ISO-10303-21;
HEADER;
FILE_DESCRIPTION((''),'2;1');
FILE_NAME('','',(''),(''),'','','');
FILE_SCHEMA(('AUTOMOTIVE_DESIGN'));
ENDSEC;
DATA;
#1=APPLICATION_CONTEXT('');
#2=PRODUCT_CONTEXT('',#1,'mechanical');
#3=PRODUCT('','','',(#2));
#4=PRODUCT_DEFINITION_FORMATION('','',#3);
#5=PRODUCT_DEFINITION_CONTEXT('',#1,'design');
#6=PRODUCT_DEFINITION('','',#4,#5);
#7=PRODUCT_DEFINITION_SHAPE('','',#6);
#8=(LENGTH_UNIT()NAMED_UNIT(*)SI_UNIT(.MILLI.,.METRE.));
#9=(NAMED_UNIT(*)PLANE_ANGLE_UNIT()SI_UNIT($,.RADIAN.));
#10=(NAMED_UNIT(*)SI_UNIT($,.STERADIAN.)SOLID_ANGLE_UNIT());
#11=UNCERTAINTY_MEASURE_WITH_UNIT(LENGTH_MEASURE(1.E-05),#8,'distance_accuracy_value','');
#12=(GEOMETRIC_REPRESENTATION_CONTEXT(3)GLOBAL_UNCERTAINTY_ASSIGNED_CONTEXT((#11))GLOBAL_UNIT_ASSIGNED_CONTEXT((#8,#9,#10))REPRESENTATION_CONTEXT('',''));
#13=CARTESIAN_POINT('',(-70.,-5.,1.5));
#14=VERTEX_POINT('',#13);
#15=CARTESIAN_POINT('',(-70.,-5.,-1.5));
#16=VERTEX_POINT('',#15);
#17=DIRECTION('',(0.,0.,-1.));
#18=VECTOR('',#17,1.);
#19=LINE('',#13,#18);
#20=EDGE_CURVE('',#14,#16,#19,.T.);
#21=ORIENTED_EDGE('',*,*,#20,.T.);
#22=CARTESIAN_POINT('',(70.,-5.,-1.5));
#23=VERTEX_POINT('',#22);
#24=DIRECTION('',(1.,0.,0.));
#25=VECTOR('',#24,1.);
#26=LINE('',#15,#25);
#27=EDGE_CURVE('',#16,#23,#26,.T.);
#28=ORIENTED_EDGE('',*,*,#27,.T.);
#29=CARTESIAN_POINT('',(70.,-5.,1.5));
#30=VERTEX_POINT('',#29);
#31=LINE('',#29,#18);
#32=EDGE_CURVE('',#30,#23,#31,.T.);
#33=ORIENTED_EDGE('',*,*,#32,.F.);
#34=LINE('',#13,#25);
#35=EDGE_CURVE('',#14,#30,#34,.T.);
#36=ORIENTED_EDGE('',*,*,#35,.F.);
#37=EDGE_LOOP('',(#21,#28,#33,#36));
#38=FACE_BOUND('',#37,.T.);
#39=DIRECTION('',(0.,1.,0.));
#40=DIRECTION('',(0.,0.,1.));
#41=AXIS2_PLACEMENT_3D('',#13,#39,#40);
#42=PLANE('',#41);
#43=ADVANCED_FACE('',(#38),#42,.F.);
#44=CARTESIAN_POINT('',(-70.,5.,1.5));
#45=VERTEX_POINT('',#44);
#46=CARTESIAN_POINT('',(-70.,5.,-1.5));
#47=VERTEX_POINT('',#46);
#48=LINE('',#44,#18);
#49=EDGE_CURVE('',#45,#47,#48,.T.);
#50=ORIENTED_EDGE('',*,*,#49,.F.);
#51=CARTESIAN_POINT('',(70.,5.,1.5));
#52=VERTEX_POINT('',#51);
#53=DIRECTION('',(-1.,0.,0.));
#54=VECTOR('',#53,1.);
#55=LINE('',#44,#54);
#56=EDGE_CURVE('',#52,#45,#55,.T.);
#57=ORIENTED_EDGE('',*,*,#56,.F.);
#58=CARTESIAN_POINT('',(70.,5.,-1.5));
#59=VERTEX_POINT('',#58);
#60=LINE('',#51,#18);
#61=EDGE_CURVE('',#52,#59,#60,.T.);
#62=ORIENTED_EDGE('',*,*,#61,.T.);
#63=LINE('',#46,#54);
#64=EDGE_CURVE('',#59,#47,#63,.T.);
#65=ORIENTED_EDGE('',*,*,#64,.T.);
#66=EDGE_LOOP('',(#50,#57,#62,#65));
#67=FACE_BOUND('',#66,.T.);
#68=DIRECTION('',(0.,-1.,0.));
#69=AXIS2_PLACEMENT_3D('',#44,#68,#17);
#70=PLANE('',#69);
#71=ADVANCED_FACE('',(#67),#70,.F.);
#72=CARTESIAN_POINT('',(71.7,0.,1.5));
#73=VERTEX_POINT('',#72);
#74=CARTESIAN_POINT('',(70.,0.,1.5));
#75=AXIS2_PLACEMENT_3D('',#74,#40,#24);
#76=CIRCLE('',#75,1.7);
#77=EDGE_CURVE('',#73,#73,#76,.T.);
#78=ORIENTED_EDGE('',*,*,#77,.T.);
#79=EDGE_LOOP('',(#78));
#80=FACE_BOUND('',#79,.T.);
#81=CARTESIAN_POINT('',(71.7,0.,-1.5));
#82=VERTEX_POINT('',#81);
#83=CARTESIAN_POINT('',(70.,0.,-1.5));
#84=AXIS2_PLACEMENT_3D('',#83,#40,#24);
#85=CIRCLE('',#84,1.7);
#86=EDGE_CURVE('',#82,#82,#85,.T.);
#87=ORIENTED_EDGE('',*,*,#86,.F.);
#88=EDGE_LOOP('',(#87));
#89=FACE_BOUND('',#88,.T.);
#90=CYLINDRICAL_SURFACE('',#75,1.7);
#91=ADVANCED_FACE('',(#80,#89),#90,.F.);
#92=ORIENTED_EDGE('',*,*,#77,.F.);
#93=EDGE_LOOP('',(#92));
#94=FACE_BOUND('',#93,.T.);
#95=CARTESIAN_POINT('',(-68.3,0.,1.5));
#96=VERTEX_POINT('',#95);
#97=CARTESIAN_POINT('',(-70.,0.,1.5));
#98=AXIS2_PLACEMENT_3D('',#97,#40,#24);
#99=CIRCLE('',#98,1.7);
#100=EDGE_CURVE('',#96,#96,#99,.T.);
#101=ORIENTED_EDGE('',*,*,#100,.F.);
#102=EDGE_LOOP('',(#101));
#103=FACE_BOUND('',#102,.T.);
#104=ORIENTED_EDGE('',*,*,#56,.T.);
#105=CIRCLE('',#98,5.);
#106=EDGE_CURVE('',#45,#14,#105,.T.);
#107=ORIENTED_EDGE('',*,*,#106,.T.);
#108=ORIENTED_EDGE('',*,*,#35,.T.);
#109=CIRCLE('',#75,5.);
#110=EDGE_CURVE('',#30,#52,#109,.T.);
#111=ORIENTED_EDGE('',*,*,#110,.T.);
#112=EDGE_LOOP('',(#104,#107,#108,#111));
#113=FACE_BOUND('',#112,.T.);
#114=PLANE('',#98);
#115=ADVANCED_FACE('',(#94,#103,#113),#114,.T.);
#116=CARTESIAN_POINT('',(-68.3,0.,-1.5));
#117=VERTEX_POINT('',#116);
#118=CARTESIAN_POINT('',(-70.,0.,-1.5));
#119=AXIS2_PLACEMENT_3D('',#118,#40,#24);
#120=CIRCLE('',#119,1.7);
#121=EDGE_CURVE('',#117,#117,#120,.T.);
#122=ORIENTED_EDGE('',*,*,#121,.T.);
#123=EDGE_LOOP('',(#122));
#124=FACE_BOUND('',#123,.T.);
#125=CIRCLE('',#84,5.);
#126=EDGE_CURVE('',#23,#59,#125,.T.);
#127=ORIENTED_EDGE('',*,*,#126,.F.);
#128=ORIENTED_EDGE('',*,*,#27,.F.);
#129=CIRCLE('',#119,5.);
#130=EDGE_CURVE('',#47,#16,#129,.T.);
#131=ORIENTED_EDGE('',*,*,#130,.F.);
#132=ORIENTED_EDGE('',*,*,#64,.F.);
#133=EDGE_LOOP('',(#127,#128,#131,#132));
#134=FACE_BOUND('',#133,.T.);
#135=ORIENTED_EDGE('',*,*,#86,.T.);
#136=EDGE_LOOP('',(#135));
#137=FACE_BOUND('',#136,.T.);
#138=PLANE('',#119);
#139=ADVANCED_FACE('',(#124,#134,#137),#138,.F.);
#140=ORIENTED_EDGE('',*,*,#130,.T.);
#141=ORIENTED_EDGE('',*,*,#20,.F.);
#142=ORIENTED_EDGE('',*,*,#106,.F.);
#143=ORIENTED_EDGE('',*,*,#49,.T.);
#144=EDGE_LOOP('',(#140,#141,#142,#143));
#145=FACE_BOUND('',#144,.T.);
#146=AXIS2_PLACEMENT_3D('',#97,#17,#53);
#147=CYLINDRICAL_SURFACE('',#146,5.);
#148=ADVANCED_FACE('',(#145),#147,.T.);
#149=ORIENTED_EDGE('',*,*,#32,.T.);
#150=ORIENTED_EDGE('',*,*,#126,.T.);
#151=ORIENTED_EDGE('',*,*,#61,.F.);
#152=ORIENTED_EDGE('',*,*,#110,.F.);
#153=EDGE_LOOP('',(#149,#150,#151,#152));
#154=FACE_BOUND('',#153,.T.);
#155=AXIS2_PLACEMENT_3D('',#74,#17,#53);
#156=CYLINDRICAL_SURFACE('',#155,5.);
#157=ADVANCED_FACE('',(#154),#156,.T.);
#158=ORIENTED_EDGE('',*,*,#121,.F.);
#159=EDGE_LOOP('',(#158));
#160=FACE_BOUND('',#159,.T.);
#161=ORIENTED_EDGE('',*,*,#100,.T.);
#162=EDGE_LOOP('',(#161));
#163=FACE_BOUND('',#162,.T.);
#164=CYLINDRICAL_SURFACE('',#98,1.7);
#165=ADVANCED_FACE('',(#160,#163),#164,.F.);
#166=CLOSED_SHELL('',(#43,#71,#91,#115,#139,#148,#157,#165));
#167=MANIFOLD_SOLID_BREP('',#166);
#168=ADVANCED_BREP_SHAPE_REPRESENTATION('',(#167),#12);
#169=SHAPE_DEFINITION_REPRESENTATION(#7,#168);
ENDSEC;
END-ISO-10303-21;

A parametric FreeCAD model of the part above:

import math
import FreeCAD as App
import Part
import Sketcher

V = App.Vector

doc = App.newDocument("Part")
body = doc.addObject("PartDesign::Body", "Body")

sketch1 = doc.addObject("Sketcher::SketchObject", "Sketch")
body.addObject(sketch1)
sketch1.AttachmentSupport = (doc.XY_Plane, [""])
sketch1.MapMode = "FlatFace"
sketch1.addGeometry(Part.LineSegment(V(70, 5, 0), V(-70, 5, 0)), False)
sketch1.addGeometry(Part.ArcOfCircle(Part.Circle(V(-70, 0, 0), V(0, 0, 1), 5), math.radians(90), math.radians(270)), False)
sketch1.addGeometry(Part.LineSegment(V(-70, -5, 0), V(70, -5, 0)), False)
sketch1.addGeometry(Part.ArcOfCircle(Part.Circle(V(70, 0, 0), V(0, 0, 1), 5), math.radians(-90), math.radians(90)), False)
sketch1.addConstraint(Sketcher.Constraint("Tangent", 0, 2, 1, 1))
sketch1.addConstraint(Sketcher.Constraint("Tangent", 1, 2, 2, 1))
sketch1.addConstraint(Sketcher.Constraint("Tangent", 2, 2, 3, 1))
sketch1.addConstraint(Sketcher.Constraint("Tangent", 3, 2, 0, 1))
sketch1.addConstraint(Sketcher.Constraint("Horizontal", 0))
sketch1.addConstraint(Sketcher.Constraint("Horizontal", 2))
sketch1.addConstraint(Sketcher.Constraint("Symmetric", 1, 3, 3, 3, -1, 1))
sketch1.addConstraint(Sketcher.Constraint("Radius", 1, 5.0))
sketch1.addConstraint(Sketcher.Constraint("DistanceX", 0, 2, 0, 1, 140.0))
pad1 = doc.addObject("PartDesign::Pad", "Pad")
body.addObject(pad1)
pad1.Profile = sketch1
pad1.Length = 3
pad1.Midplane = True

sketch2 = doc.addObject("Sketcher::SketchObject", "Sketch001")
body.addObject(sketch2)
sketch2.AttachmentSupport = (doc.XY_Plane, [""])
sketch2.MapMode = "FlatFace"
sketch2.AttachmentOffset = App.Placement(V(0, 0, 1.5), App.Rotation())
sketch2.addGeometry(Part.Circle(V(-70, 0, 0), V(0, 0, 1), 1.7), False)
sketch2.addGeometry(Part.Circle(V(70, 0, 0), V(0, 0, 1), 1.7), False)
sketch2.addConstraint(Sketcher.Constraint("Equal", 0, 1))
sketch2.addConstraint(Sketcher.Constraint("Symmetric", 0, 3, 1, 3, -1, 1))
sketch2.addConstraint(Sketcher.Constraint("PointOnObject", 0, 3, -1))
sketch2.addConstraint(Sketcher.Constraint("Diameter", 0, 3.4))
sketch2.addConstraint(Sketcher.Constraint("DistanceX", 0, 3, -1, 1, 70.0))
doc.recompute()
hole = doc.addObject("PartDesign::Hole", "Hole")
body.addObject(hole)
hole.Profile = sketch2
hole.ThreadType = "None"
hole.Diameter = 3.4
hole.DepthType = "ThroughAll"

doc.recompute()
